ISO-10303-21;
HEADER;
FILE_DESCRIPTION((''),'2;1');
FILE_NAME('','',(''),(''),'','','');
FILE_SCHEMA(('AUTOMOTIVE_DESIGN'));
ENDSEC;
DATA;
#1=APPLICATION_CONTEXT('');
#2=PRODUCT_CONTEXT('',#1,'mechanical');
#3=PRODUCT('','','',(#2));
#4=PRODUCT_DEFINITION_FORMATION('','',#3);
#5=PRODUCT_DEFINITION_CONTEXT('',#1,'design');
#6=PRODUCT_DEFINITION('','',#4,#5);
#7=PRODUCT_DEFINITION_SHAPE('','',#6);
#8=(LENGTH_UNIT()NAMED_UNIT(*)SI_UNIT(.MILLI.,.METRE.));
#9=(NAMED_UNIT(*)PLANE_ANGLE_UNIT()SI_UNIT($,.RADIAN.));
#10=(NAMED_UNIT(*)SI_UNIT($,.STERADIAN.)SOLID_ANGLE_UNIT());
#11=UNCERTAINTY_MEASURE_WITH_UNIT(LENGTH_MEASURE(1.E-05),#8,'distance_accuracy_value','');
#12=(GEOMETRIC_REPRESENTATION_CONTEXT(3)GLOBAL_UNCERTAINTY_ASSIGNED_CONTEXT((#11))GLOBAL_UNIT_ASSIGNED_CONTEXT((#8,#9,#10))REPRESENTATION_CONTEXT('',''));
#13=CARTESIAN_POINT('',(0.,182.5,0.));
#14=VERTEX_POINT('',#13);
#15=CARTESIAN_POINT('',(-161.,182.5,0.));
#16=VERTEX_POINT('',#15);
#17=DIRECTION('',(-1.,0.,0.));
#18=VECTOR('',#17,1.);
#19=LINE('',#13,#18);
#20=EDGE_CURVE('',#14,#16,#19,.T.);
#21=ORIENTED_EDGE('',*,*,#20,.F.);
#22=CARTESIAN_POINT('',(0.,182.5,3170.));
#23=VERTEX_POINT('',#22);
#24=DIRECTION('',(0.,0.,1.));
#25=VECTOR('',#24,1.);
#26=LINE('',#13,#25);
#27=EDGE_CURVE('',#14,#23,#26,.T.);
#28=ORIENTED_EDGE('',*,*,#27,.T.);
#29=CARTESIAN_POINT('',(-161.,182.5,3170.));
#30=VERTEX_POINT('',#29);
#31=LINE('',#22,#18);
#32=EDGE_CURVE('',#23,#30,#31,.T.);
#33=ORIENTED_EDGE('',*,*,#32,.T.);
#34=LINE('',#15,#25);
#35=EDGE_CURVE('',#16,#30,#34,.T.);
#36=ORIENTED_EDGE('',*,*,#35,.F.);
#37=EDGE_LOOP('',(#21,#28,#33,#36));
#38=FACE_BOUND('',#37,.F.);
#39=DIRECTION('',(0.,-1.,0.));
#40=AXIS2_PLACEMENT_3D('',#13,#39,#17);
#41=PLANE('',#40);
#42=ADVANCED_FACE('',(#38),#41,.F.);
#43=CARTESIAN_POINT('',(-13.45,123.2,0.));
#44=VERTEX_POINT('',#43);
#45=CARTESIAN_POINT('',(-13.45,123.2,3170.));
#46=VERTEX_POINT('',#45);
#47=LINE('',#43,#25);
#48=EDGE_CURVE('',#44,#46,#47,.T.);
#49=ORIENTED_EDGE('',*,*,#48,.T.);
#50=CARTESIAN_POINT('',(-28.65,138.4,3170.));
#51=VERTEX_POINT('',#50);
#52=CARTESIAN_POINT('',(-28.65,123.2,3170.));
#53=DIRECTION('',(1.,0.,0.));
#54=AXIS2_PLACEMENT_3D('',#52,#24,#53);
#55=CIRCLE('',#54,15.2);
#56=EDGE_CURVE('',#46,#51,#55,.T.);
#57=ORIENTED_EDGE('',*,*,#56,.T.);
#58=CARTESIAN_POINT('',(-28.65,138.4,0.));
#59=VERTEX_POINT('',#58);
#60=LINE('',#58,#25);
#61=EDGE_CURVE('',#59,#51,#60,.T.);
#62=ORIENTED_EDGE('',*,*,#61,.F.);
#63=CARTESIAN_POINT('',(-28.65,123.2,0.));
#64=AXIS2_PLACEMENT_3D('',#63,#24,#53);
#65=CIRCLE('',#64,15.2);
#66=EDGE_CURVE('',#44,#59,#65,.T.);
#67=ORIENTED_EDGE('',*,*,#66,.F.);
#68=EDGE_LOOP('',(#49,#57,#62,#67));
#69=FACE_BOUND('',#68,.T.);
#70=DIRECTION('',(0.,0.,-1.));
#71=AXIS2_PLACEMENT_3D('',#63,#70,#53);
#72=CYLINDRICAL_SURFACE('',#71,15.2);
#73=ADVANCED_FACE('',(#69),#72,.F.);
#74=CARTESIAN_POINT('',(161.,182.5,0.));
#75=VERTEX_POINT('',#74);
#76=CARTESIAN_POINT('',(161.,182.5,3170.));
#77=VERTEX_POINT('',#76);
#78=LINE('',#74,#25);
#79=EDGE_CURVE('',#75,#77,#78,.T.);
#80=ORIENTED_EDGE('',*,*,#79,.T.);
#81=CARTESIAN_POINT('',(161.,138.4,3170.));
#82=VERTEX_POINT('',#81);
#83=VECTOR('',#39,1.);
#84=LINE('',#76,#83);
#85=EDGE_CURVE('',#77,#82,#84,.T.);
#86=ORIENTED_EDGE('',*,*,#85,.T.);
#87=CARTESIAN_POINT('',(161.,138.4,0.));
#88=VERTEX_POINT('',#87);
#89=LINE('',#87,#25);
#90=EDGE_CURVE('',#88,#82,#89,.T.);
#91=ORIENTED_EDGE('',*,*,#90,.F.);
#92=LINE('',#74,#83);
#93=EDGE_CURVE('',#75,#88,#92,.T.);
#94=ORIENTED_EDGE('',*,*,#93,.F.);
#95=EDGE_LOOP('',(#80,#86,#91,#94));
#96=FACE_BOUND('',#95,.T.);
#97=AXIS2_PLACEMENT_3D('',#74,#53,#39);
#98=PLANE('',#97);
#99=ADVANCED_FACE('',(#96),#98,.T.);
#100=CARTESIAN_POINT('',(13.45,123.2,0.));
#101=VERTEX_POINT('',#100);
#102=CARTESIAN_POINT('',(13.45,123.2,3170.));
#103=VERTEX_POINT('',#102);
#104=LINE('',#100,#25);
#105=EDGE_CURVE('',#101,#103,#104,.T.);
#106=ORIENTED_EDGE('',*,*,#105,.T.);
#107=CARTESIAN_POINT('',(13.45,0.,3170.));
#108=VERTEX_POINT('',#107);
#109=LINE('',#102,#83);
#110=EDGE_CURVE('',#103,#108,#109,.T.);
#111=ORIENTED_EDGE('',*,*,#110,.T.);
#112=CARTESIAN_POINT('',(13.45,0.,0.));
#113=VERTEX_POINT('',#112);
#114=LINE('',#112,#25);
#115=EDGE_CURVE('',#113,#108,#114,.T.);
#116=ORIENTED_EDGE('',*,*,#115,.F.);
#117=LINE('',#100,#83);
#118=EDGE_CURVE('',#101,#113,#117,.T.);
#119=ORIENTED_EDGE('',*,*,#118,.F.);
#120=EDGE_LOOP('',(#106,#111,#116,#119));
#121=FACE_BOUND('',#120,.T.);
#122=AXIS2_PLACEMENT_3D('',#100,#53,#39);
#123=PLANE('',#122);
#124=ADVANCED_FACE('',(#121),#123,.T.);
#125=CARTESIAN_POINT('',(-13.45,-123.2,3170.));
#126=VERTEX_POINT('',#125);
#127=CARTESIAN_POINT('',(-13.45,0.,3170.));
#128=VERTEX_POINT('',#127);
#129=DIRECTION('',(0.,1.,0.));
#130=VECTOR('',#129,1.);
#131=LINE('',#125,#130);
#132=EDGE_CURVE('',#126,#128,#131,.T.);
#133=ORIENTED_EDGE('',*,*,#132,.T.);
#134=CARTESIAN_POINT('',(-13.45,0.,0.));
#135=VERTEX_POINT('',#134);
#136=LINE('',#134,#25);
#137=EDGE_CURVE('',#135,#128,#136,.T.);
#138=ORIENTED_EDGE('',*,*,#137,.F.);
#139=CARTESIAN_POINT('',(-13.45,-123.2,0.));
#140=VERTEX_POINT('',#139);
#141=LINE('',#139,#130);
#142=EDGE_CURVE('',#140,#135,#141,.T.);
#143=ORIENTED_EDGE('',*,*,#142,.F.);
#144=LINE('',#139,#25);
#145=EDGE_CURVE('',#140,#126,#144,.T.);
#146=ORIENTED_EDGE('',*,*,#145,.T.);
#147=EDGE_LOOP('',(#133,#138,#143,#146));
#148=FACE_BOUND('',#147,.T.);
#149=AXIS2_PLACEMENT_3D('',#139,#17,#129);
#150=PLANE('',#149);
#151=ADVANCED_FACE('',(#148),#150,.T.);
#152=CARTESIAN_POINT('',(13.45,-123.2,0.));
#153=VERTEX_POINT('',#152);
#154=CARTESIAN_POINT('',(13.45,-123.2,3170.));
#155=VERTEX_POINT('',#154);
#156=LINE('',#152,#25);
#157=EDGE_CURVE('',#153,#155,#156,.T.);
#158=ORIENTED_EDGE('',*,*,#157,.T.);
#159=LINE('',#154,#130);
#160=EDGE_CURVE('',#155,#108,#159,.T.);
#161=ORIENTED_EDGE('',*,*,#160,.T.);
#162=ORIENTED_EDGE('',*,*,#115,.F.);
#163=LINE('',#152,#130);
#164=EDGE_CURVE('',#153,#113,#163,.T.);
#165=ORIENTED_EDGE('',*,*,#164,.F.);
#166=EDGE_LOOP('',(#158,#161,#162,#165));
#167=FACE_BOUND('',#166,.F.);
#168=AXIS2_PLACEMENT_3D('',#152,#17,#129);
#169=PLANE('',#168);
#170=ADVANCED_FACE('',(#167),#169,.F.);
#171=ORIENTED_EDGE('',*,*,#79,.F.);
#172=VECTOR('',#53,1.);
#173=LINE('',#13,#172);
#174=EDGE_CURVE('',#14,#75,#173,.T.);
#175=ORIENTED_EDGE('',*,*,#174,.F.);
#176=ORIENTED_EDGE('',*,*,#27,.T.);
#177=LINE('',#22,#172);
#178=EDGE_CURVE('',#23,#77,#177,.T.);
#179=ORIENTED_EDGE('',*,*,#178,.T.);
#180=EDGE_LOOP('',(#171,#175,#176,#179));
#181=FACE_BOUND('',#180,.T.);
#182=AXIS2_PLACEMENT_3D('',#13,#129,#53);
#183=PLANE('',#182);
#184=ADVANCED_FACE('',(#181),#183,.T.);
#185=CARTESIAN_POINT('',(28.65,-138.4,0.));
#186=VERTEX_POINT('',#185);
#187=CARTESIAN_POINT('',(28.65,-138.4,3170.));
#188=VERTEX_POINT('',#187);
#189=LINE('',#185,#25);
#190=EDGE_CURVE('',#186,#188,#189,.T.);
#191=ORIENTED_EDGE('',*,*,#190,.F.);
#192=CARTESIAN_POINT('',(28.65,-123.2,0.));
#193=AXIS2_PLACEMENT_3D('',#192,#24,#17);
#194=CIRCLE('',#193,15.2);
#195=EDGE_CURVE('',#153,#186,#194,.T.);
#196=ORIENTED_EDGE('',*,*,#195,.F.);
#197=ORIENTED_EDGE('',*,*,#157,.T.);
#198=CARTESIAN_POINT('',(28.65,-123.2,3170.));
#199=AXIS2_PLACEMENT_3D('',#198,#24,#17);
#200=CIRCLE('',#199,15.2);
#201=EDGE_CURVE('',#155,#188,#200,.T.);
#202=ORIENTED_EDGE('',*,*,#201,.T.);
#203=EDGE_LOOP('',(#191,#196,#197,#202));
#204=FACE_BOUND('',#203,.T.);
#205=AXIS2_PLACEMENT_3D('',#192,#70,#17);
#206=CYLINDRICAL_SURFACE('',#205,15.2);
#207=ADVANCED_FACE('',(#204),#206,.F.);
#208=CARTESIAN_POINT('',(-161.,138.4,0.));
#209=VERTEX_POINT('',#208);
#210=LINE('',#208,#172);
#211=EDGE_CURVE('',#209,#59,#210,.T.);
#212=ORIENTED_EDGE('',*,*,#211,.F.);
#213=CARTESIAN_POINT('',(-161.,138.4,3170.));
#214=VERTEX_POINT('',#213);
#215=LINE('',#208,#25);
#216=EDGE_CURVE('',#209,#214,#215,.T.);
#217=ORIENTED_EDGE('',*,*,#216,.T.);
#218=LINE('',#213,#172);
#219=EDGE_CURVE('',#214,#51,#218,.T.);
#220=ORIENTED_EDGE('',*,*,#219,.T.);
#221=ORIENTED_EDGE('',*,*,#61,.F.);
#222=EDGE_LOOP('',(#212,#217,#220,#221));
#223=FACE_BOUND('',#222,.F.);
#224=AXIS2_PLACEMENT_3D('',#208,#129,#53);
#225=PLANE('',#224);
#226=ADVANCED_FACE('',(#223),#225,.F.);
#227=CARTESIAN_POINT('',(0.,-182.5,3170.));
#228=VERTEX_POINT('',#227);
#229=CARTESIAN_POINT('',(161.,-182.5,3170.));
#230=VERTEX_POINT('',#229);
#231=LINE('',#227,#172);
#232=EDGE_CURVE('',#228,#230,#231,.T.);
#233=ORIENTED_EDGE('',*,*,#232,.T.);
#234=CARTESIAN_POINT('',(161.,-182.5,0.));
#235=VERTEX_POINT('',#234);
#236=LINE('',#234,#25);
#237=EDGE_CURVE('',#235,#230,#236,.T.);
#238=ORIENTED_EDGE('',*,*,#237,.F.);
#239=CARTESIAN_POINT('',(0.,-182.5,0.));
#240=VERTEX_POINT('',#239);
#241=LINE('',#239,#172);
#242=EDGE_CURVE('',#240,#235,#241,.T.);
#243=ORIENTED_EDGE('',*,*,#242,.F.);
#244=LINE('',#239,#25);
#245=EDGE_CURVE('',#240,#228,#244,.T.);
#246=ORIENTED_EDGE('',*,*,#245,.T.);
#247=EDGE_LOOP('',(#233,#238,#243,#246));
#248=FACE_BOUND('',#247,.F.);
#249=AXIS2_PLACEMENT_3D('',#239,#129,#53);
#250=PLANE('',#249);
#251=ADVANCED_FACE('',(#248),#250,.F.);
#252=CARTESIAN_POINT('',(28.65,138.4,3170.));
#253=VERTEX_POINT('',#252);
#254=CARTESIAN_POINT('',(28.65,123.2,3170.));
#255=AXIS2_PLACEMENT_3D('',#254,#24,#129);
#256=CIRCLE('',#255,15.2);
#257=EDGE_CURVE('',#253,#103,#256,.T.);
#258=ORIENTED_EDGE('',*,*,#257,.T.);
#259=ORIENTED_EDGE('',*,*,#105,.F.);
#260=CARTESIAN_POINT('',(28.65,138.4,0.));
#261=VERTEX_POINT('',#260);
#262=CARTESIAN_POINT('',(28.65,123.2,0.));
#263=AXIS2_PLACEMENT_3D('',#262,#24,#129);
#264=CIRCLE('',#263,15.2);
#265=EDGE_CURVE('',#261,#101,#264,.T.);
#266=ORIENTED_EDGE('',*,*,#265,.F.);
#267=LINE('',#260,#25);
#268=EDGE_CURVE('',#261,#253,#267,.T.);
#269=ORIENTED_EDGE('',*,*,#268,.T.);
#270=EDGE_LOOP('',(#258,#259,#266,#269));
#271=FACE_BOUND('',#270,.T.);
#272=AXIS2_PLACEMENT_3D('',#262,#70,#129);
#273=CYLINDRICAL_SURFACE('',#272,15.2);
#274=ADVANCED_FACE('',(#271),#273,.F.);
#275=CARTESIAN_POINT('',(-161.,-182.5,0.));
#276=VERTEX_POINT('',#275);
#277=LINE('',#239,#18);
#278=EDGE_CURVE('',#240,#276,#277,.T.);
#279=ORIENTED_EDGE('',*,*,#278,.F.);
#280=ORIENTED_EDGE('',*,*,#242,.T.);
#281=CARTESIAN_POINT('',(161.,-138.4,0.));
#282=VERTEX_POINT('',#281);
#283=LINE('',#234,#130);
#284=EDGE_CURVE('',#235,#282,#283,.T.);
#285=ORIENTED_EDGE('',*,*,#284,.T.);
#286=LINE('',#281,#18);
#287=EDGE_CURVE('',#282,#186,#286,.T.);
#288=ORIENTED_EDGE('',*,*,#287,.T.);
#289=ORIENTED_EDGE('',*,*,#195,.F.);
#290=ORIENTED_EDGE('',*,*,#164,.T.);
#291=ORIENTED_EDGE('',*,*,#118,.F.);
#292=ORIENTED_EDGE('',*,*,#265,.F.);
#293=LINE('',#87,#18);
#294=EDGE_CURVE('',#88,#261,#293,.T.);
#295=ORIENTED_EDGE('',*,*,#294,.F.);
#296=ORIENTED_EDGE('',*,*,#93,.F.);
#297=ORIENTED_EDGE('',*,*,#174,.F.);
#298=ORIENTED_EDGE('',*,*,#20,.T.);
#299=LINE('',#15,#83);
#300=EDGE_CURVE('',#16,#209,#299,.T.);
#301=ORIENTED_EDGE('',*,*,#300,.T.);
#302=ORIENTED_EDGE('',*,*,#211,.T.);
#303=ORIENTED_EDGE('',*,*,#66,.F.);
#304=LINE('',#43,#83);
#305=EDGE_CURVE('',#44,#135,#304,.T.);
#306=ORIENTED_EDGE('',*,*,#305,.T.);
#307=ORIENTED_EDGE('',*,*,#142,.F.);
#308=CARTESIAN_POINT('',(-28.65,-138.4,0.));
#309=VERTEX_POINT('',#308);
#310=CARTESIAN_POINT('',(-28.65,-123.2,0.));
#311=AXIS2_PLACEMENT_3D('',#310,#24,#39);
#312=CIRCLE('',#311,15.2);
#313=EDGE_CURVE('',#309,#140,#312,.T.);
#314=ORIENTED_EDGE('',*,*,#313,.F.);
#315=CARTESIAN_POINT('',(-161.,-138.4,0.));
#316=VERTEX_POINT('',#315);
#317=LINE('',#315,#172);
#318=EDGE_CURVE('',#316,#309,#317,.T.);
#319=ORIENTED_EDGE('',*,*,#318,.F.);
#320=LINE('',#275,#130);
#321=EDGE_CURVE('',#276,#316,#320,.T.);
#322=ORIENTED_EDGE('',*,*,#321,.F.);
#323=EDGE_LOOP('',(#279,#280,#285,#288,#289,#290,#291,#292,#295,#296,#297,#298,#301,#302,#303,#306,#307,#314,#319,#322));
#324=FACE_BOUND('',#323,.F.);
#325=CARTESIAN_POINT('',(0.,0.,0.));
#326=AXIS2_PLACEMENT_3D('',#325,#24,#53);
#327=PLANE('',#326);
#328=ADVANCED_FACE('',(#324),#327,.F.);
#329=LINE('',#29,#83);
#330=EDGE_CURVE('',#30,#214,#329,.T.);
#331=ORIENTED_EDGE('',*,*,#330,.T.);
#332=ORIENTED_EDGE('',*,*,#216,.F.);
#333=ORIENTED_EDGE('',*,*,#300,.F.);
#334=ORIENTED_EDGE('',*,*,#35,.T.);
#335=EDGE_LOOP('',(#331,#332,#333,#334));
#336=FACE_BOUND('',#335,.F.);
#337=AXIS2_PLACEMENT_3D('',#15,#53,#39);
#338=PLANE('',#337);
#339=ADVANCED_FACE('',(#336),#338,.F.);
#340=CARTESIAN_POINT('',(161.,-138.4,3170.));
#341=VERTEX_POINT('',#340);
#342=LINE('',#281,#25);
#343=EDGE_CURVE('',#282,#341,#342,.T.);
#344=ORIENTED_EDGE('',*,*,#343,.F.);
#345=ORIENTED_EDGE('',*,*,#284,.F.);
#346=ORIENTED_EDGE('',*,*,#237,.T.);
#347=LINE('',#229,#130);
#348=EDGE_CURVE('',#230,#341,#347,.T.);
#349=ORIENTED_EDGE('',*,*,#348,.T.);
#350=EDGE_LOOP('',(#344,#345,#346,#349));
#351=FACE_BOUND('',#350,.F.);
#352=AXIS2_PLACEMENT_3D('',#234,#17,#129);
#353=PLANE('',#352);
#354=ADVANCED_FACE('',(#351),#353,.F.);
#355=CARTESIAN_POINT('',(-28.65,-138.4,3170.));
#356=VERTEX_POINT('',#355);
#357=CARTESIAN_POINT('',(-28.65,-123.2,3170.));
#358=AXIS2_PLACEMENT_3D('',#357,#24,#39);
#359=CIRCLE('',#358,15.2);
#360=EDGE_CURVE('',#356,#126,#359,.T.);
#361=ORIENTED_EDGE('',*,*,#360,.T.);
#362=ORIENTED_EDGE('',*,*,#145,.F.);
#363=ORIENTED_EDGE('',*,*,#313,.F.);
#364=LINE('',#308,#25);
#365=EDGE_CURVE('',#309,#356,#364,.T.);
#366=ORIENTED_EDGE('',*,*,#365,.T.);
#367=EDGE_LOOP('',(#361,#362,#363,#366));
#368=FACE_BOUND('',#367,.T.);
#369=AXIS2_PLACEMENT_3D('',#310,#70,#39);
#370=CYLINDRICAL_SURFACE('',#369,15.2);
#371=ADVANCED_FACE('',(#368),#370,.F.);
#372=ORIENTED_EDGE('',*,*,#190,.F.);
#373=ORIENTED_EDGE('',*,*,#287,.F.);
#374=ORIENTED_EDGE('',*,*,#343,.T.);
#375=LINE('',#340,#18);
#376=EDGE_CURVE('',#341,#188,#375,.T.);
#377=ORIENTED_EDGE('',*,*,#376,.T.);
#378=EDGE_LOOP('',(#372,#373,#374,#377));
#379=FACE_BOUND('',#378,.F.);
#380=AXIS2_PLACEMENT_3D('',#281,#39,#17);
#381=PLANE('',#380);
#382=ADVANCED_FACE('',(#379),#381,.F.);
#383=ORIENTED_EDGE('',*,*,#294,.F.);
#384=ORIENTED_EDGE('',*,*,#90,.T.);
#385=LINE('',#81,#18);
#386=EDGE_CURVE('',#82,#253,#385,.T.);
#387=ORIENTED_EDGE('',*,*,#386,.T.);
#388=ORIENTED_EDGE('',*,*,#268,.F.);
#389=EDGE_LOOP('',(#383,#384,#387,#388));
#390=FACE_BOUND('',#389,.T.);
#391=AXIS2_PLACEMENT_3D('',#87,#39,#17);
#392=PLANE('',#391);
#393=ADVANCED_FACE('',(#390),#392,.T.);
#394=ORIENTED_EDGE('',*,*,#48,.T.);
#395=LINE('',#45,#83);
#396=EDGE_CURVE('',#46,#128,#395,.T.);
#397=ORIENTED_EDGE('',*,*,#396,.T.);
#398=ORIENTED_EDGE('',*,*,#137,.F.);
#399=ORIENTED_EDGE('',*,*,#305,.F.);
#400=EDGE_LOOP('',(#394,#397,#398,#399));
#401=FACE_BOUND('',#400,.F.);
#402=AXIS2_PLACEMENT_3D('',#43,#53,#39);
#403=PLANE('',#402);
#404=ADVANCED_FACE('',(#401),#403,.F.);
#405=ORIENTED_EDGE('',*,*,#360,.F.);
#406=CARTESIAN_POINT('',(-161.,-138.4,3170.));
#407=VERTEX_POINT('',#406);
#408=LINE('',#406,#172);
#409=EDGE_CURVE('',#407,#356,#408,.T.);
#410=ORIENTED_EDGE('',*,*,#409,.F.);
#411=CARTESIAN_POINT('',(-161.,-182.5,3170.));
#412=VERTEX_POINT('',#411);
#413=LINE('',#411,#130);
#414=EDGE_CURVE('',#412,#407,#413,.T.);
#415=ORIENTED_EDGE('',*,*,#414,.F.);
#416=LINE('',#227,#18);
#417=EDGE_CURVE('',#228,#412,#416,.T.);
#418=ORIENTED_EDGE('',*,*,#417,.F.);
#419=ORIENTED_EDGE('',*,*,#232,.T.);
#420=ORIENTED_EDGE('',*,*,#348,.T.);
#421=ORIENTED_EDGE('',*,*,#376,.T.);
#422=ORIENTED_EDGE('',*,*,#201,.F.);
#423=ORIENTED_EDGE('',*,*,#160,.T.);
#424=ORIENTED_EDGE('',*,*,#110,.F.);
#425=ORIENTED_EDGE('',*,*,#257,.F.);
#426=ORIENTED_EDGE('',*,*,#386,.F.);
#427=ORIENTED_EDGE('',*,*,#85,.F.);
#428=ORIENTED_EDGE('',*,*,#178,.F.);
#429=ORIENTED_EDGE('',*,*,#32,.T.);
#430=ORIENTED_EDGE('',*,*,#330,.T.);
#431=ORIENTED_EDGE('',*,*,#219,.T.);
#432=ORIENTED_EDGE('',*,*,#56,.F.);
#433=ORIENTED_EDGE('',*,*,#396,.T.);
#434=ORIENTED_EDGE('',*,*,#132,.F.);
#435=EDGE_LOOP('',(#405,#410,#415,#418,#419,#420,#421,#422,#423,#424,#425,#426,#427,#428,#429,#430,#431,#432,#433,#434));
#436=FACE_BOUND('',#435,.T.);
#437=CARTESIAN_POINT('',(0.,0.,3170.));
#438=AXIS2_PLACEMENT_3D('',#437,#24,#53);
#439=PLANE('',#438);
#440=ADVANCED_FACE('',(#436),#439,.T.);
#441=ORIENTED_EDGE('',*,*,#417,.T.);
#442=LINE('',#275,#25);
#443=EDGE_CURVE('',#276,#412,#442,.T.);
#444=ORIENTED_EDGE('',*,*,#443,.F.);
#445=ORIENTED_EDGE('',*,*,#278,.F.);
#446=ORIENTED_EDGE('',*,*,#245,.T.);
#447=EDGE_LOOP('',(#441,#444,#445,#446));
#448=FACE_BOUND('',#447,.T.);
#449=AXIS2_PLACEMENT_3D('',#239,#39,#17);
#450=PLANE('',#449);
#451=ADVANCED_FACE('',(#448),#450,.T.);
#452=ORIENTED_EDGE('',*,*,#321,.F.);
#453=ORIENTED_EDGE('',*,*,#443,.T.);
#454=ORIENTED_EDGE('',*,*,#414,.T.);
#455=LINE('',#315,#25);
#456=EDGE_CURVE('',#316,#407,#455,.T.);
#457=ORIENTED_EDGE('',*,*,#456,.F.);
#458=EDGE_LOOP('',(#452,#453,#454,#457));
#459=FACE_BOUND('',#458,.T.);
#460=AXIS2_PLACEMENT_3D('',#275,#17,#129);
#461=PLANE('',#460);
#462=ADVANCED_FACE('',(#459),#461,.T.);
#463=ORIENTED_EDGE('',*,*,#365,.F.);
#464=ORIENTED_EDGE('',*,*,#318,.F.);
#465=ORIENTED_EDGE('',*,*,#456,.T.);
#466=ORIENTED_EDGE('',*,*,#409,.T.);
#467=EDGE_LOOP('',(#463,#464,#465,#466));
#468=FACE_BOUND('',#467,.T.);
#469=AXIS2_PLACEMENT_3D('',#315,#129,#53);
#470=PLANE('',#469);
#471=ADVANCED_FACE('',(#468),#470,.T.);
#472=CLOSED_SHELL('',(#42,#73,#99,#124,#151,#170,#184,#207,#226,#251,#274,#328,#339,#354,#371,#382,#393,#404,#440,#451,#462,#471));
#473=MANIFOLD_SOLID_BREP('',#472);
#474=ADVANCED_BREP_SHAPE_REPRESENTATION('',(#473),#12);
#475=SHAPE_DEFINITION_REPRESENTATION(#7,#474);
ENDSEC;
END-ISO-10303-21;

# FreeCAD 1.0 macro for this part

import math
import FreeCAD as App
import Part
import Sketcher
from FreeCAD import Vector

doc = App.newDocument("Part")
body = doc.addObject("PartDesign::Body", "Body")

sketch1 = doc.addObject("Sketcher::SketchObject", "Sketch")
body.addObject(sketch1)
sketch1.AttachmentSupport = (doc.XY_Plane, [""])
sketch1.MapMode = "FlatFace"
sketch1.addGeometry([
    Part.LineSegment(Vector(-161, -138.4, 0), Vector(-161, -182.5, 0)),
    Part.LineSegment(Vector(-161, -182.5, 0), Vector(161, -182.5, 0)),
    Part.LineSegment(Vector(161, -182.5, 0), Vector(161, -138.4, 0)),
    Part.LineSegment(Vector(161, -138.4, 0), Vector(28.65, -138.4, 0)),
    Part.ArcOfCircle(Part.Circle(Vector(28.65, -123.2, 0), Vector(0, 0, 1), 15.2), math.radians(180), math.radians(270)),
    Part.LineSegment(Vector(13.45, -123.2, 0), Vector(13.45, 123.2, 0)),
    Part.ArcOfCircle(Part.Circle(Vector(28.65, 123.2, 0), Vector(0, 0, 1), 15.2), math.radians(90), math.radians(180)),
    Part.LineSegment(Vector(28.65, 138.4, 0), Vector(161, 138.4, 0)),
    Part.LineSegment(Vector(161, 138.4, 0), Vector(161, 182.5, 0)),
    Part.LineSegment(Vector(161, 182.5, 0), Vector(-161, 182.5, 0)),
    Part.LineSegment(Vector(-161, 182.5, 0), Vector(-161, 138.4, 0)),
    Part.LineSegment(Vector(-161, 138.4, 0), Vector(-28.65, 138.4, 0)),
    Part.ArcOfCircle(Part.Circle(Vector(-28.65, 123.2, 0), Vector(0, 0, 1), 15.2), math.radians(0), math.radians(90)),
    Part.LineSegment(Vector(-13.45, 123.2, 0), Vector(-13.45, -123.2, 0)),
    Part.ArcOfCircle(Part.Circle(Vector(-28.65, -123.2, 0), Vector(0, 0, 1), 15.2), math.radians(-90), math.radians(0)),
    Part.LineSegment(Vector(-28.65, -138.4, 0), Vector(-161, -138.4, 0)),
], False)
sketch1.addConstraint([
    Sketcher.Constraint("Coincident", 0, 2, 1, 1),
    Sketcher.Constraint("Coincident", 1, 2, 2, 1),
    Sketcher.Constraint("Coincident", 2, 2, 3, 1),
    Sketcher.Constraint("Tangent", 3, 2, 4, 2),
    Sketcher.Constraint("Tangent", 4, 1, 5, 1),
    Sketcher.Constraint("Tangent", 5, 2, 6, 2),
    Sketcher.Constraint("Tangent", 6, 1, 7, 1),
    Sketcher.Constraint("Coincident", 7, 2, 8, 1),
    Sketcher.Constraint("Coincident", 8, 2, 9, 1),
    Sketcher.Constraint("Coincident", 9, 2, 10, 1),
    Sketcher.Constraint("Coincident", 10, 2, 11, 1),
    Sketcher.Constraint("Tangent", 11, 2, 12, 2),
    Sketcher.Constraint("Tangent", 12, 1, 13, 1),
    Sketcher.Constraint("Tangent", 13, 2, 14, 2),
    Sketcher.Constraint("Tangent", 14, 1, 15, 1),
    Sketcher.Constraint("Coincident", 15, 2, 0, 1),
    Sketcher.Constraint("Vertical", 0),
    Sketcher.Constraint("Horizontal", 1),
    Sketcher.Constraint("Vertical", 2),
    Sketcher.Constraint("Horizontal", 3),
    Sketcher.Constraint("Vertical", 5),
    Sketcher.Constraint("Horizontal", 7),
    Sketcher.Constraint("Vertical", 8),
    Sketcher.Constraint("Horizontal", 9),
    Sketcher.Constraint("Vertical", 10),
    Sketcher.Constraint("Horizontal", 11),
    Sketcher.Constraint("Vertical", 13),
    Sketcher.Constraint("Horizontal", 15),
    Sketcher.Constraint("Equal", 4, 6),
    Sketcher.Constraint("Equal", 6, 12),
    Sketcher.Constraint("Equal", 12, 14),
    Sketcher.Constraint("Symmetric", 4, 3, 12, 3, -1, 1),
    Sketcher.Constraint("Symmetric", 0, 2, 8, 2, -1, 1),
    Sketcher.Constraint("Symmetric", 7, 2, 10, 2, -2),
    Sketcher.Constraint("Symmetric", 2, 2, 15, 2, -2),
    Sketcher.Constraint("Radius", 4, 15.2),
    Sketcher.Constraint("DistanceY", 0, 2, 0, 1, 44.1),
    Sketcher.Constraint("DistanceX", 0, 2, -1, 1, 161.0),
    Sketcher.Constraint("DistanceY", 0, 2, -1, 1, 182.5),
    Sketcher.Constraint("DistanceX", -1, 1, 4, 1, 13.45),
])
pad1 = doc.addObject("PartDesign::Pad", "Pad")
body.addObject(pad1)
pad1.Profile = sketch1
pad1.Length = 3170

doc.recompute()
